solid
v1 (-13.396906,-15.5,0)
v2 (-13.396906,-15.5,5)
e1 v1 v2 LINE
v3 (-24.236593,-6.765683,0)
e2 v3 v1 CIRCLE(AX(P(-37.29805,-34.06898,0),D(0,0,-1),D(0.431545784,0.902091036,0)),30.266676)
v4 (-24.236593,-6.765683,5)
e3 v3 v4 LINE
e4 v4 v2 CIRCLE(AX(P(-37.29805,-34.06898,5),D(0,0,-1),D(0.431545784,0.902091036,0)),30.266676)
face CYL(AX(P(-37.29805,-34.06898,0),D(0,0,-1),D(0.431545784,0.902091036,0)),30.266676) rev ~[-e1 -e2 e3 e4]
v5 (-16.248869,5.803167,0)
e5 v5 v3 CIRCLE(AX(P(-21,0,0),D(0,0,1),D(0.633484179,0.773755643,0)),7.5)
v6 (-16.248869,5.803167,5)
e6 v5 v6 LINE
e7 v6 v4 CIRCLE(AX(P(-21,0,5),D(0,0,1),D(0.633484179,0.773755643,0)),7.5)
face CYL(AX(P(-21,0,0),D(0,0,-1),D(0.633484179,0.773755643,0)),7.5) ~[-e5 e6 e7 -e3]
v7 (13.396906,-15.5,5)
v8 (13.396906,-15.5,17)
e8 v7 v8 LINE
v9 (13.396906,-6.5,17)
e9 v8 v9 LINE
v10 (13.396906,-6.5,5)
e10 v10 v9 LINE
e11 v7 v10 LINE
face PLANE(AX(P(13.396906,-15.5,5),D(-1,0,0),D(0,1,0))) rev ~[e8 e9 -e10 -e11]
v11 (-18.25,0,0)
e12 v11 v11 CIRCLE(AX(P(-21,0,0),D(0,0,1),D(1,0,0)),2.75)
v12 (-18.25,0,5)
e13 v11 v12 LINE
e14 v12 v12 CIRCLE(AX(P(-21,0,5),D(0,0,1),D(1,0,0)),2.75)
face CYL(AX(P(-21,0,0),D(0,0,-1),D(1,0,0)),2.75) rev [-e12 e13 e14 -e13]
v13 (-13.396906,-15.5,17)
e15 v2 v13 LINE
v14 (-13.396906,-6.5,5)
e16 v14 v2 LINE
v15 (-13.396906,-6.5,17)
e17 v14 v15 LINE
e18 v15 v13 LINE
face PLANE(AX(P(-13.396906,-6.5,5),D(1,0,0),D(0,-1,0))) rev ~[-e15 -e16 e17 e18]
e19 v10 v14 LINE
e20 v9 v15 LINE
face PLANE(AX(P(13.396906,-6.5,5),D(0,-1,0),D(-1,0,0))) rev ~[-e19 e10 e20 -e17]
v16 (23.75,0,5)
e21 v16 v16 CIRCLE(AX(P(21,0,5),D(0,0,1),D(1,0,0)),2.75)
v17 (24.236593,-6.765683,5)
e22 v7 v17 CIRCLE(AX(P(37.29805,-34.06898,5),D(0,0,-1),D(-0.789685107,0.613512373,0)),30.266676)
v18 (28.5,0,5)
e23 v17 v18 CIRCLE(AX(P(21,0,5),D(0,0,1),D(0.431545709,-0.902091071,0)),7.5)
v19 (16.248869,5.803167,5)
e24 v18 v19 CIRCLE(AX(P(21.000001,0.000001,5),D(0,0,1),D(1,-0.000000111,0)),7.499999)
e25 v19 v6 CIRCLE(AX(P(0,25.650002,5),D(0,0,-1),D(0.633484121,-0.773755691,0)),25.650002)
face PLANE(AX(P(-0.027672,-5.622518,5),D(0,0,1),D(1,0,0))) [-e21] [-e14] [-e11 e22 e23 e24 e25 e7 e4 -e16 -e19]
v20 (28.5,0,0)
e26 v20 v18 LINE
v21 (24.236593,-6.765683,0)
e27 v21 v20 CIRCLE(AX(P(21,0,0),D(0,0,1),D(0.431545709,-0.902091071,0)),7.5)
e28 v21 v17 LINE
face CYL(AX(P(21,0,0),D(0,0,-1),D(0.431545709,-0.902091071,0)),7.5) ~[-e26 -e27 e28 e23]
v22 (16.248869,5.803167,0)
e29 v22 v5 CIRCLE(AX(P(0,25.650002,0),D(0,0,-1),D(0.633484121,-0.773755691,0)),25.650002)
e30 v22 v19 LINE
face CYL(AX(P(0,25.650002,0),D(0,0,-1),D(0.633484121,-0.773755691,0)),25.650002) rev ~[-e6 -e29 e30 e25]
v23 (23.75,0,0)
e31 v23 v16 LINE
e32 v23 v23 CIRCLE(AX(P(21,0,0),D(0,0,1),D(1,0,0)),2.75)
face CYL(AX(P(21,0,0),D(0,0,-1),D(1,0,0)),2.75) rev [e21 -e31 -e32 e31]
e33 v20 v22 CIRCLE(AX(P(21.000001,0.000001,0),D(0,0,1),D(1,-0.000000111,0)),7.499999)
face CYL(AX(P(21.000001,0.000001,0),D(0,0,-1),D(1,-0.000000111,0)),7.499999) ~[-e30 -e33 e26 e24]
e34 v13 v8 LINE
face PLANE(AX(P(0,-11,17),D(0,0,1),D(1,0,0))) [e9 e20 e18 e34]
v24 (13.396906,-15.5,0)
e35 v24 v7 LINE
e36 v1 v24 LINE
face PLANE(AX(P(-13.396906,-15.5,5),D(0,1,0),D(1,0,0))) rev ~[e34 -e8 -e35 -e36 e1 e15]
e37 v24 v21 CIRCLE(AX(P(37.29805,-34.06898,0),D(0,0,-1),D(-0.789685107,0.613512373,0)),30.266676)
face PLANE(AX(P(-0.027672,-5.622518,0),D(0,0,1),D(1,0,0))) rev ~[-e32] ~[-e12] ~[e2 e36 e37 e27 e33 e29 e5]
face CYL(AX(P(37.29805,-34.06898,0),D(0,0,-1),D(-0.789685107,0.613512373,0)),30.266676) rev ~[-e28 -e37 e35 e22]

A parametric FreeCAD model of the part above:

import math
import FreeCAD as App
import Part
import Sketcher

V = App.Vector

doc = App.newDocument("Part")
params = doc.addObject("Spreadsheet::Sheet", "Params")
for row, (alias, value) in enumerate([
    ("sketch1_diameter", "5.5 mm"),
    ("sketch1_radius", "7.5 mm"),
    ("pad1_length", "5 mm"),
    ("sketch2_height", "9 mm"),
    ("pad2_length", "12 mm"),
], start=1):
    params.set(f"A{row}", alias)
    params.set(f"B{row}", "=" + value)
    params.setAlias(f"B{row}", alias)

body = doc.addObject("PartDesign::Body", "Body")

sketch1 = body.newObject("Sketcher::SketchObject", "Sketch")
sketch1.AttachmentSupport = (doc.getObject("XY_Plane"), [""])
sketch1.MapMode = "FlatFace"
sketch1.addGeometry(Part.ArcOfCircle(Part.Circle(V(-37.29805, -34.06898, 0), V(0, 0, 1), 30.266676), math.radians(37.843906), math.radians(64.4343)), False)
sketch1.addGeometry(Part.LineSegment(V(-13.396906, -15.5, 0), V(13.396906, -15.5, 0)), False)
sketch1.addGeometry(Part.ArcOfCircle(Part.Circle(V(37.29805, -34.06898, 0), V(0, 0, 1), 30.266676), math.radians(115.5657), math.radians(142.156094)), False)
sketch1.addGeometry(Part.ArcOfCircle(Part.Circle(V(21, 0, 0), V(0, 0, 1), 7.5), math.radians(-64.434305), math.radians(0.000002)), False)
sketch1.addGeometry(Part.ArcOfCircle(Part.Circle(V(21.000001, 0.000001, 0), V(0, 0, 1), 7.499999), math.radians(-0.000006), math.radians(129.307657)), False)
sketch1.addGeometry(Part.ArcOfCircle(Part.Circle(V(0, 25.650002, 0), V(0, 0, 1), 25.650002), math.radians(-129.307645), math.radians(-50.692355)), False)
sketch1.addGeometry(Part.ArcOfCircle(Part.Circle(V(-21, 0, 0), V(0, 0, 1), 7.5), math.radians(50.692351), math.radians(244.434305)), False)
sketch1.addGeometry(Part.Circle(V(-21, 0, 0), V(0, 0, 1), 2.75), False)
sketch1.addGeometry(Part.Circle(V(21, 0, 0), V(0, 0, 1), 2.75), False)
sketch1.addConstraint(Sketcher.Constraint("Coincident", 0, 1, 1, 1))
sketch1.addConstraint(Sketcher.Constraint("Coincident", 1, 2, 2, 2))
sketch1.addConstraint(Sketcher.Constraint("Tangent", 2, 1, 3, 1))
sketch1.addConstraint(Sketcher.Constraint("Tangent", 3, 2, 4, 1))
sketch1.addConstraint(Sketcher.Constraint("Tangent", 4, 2, 5, 2))
sketch1.addConstraint(Sketcher.Constraint("Tangent", 5, 1, 6, 1))
sketch1.addConstraint(Sketcher.Constraint("Tangent", 6, 2, 0, 2))
sketch1.addConstraint(Sketcher.Constraint("Horizontal", 1))
sketch1.addConstraint(Sketcher.Constraint("Coincident", 7, 3, 6, 3))
sketch1.addConstraint(Sketcher.Constraint("Coincident", 8, 3, 3, 3))
sketch1.addConstraint(Sketcher.Constraint("Equal", 0, 2))
sketch1.addConstraint(Sketcher.Constraint("Equal", 3, 4))
sketch1.addConstraint(Sketcher.Constraint("Equal", 4, 6))
sketch1.addConstraint(Sketcher.Constraint("Equal", 7, 8))
sketch1.addConstraint(Sketcher.Constraint("Symmetric", 3, 3, 6, 3, -1, 1))
sketch1.addConstraint(Sketcher.Constraint("Symmetric", 0, 3, 2, 3, -2))
sketch1.addConstraint(Sketcher.Constraint("PointOnObject", 3, 2, -1))
sketch1.addConstraint(Sketcher.Constraint("Diameter", 7, 5.5))
sketch1.addConstraint(Sketcher.Constraint("Radius", 3, 7.5))
sketch1.addConstraint(Sketcher.Constraint("DistanceX", -1, 1, 3, 3, 21.0))
sketch1.addConstraint(Sketcher.Constraint("DistanceY", 0, 1, -1, 1, 15.5))
sketch1.addConstraint(Sketcher.Constraint("DistanceY", 4, 3, 5, 3, 25.650001))
sketch1.addConstraint(Sketcher.Constraint("Radius", 0, 30.266676))
sketch1.addConstraint(Sketcher.Constraint("DistanceX", 1, 1, 1, 2, 26.793812))
sketch1.setExpression("Constraints[17]", "Params.sketch1_diameter")
sketch1.setExpression("Constraints[18]", "Params.sketch1_radius")
pad1 = body.newObject("PartDesign::Pad", "Pad")
pad1.Profile = sketch1
pad1.setExpression("Length", "Params.pad1_length")

sketch2 = body.newObject("Sketcher::SketchObject", "Sketch001")
sketch2.AttachmentSupport = (doc.getObject("XY_Plane"), [""])
sketch2.MapMode = "FlatFace"
sketch2.AttachmentOffset = App.Placement(V(0, 0, 5), App.Rotation())
sketch2.addGeometry(Part.LineSegment(V(13.396906, -6.5, 0), V(-13.396906, -6.5, 0)), False)
sketch2.addGeometry(Part.LineSegment(V(-13.396906, -6.5, 0), V(-13.396906, -15.5, 0)), False)
sketch2.addGeometry(Part.LineSegment(V(-13.396906, -15.5, 0), V(13.396906, -15.5, 0)), False)
sketch2.addGeometry(Part.LineSegment(V(13.396906, -15.5, 0), V(13.396906, -6.5, 0)), False)
sketch2.addConstraint(Sketcher.Constraint("Coincident", 0, 2, 1, 1))
sketch2.addConstraint(Sketcher.Constraint("Coincident", 1, 2, 2, 1))
sketch2.addConstraint(Sketcher.Constraint("Coincident", 2, 2, 3, 1))
sketch2.addConstraint(Sketcher.Constraint("Coincident", 3, 2, 0, 1))
sketch2.addConstraint(Sketcher.Constraint("Horizontal", 0))
sketch2.addConstraint(Sketcher.Constraint("Vertical", 1))
sketch2.addConstraint(Sketcher.Constraint("Horizontal", 2))
sketch2.addConstraint(Sketcher.Constraint("Vertical", 3))
sketch2.addConstraint(Sketcher.Constraint("DistanceY", 1, 2, 1, 1, 9.0))
sketch2.addConstraint(Sketcher.Constraint("DistanceY", 0, 2, -1, 1, 6.5))
sketch2.addConstraint(Sketcher.Constraint("DistanceX", 0, 2, 0, 1, 26.793812))
sketch2.addConstraint(Sketcher.Constraint("DistanceX", 0, 2, -1, 1, 13.396906))
sketch2.setExpression("Constraints[8]", "Params.sketch2_height")
pad2 = body.newObject("PartDesign::Pad", "Pad001")
pad2.Profile = sketch2
pad2.setExpression("Length", "Params.pad2_length")

doc.recompute()
